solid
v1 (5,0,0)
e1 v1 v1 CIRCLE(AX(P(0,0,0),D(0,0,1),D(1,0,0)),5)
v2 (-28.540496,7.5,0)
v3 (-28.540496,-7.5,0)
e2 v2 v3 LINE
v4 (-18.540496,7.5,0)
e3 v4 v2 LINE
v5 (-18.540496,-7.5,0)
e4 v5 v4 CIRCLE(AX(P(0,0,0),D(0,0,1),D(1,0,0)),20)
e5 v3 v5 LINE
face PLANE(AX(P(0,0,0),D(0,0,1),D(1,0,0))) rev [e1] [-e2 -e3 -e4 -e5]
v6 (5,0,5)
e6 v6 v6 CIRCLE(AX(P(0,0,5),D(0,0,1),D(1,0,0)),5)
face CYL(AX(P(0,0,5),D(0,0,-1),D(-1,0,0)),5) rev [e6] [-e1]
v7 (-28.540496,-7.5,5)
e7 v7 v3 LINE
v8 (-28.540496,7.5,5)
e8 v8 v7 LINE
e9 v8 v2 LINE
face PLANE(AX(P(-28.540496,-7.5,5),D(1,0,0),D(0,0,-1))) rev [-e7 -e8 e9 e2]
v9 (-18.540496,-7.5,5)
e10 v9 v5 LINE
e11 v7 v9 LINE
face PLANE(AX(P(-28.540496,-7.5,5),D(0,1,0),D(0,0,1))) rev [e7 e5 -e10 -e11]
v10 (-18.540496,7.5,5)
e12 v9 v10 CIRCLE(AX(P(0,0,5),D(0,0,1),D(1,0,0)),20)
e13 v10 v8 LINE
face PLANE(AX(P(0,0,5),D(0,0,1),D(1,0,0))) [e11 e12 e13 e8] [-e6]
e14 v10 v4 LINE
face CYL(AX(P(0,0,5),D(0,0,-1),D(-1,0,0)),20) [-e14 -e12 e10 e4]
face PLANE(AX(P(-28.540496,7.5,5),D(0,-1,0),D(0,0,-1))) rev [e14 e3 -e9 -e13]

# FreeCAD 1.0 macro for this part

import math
import FreeCAD as App
import Part
import Sketcher
Q = App.Units.Quantity

doc = App.newDocument("Part")
params = doc.addObject("Spreadsheet::Sheet", "Params")
for row, (alias, value) in enumerate([
    ("sketch1_diameter", "10 mm"),
    ("sketch1_radius", "20 mm"),
    ("sketch1_width", "10 mm"),
    ("sketch1_height", "15 mm"),
    ("pad1_length", "5 mm"),
], start=1):
    params.set(f"A{row}", alias)
    params.set(f"B{row}", "=" + value)
    params.setAlias(f"B{row}", alias)

body = doc.addObject("PartDesign::Body", "Body")

# Sketch on XY plane
sketch1 = body.newObject("Sketcher::SketchObject", "Sketch")
sketch1.AttachmentSupport = (doc.getObject("XY_Plane"), [""])
sketch1.MapMode = "FlatFace"
sketch1.addGeometry([
    Part.LineSegment(App.Vector(-29, 8, 0), App.Vector(-29, -8, 0)),  # 0
    Part.LineSegment(App.Vector(-29, -8, 0), App.Vector(-19, -8, 0)),  # 1
    Part.ArcOfCircle(Part.Circle(App.Vector(0, 0, 0), App.Vector(0, 0, 1), 20), math.radians(-158), math.radians(158)),  # 2
    Part.LineSegment(App.Vector(-19, 8, 0), App.Vector(-29, 8, 0)),  # 3
    Part.Circle(App.Vector(0, 0, 0), App.Vector(0, 0, 1), 5),  # 4
], False)
sketch1.addConstraint([
    Sketcher.Constraint("Coincident", 0, 2, 1, 1),
    Sketcher.Constraint("Coincident", 1, 2, 2, 1),
    Sketcher.Constraint("Coincident", 2, 2, 3, 1),
    Sketcher.Constraint("Coincident", 3, 2, 0, 1),
    Sketcher.Constraint("Vertical", 0),
    Sketcher.Constraint("Horizontal", 1),
    Sketcher.Constraint("Horizontal", 3),
    Sketcher.Constraint("Coincident", 2, 3, -1, 1),
    Sketcher.Constraint("Coincident", 4, 3, -1, 1),
    Sketcher.Constraint("Vertical", 1, 2, 2, 2),
    Sketcher.Constraint("Diameter", 4, Q("10 mm")),
    Sketcher.Constraint("Radius", 2, Q("20 mm")),
    Sketcher.Constraint("DistanceX", 1, 1, 1, 2, Q("10 mm")),
    Sketcher.Constraint("DistanceY", 0, 2, 0, 1, Q("15 mm")),
])
sketch1.setExpression("Constraints[10]", "Params.sketch1_diameter")
sketch1.setExpression("Constraints[11]", "Params.sketch1_radius")
sketch1.setExpression("Constraints[12]", "Params.sketch1_width")
sketch1.setExpression("Constraints[13]", "Params.sketch1_height")
pad1 = body.newObject("PartDesign::Pad", "Pad")
pad1.Profile = sketch1
pad1.setExpression("Length", "Params.pad1_length")

doc.recompute()
